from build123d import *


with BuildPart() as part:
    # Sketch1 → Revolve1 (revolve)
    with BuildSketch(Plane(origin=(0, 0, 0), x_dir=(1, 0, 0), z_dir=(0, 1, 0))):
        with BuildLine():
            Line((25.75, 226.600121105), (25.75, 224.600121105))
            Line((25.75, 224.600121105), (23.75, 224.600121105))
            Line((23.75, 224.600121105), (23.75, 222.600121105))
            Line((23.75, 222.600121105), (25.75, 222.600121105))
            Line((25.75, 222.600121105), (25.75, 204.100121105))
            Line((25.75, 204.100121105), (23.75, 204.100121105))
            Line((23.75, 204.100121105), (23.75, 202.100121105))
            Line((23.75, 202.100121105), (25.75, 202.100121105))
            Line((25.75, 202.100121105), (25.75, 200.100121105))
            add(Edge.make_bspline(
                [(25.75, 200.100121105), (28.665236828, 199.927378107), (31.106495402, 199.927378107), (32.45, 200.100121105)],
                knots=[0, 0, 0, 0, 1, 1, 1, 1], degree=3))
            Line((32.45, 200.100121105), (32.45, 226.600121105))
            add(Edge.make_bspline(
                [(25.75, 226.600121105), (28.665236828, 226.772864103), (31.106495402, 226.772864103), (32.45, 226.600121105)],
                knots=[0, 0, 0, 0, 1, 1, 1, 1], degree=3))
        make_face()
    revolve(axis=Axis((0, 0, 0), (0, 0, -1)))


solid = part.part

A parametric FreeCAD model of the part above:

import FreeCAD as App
import Part
import Sketcher

V = App.Vector

doc = App.newDocument("Part")
params = doc.addObject("Spreadsheet::Sheet", "Params")
for row, (alias, value) in enumerate([
    ("sketch1_width", "2 mm"),
    ("sketch1_width2", "2 mm"),
    ("sketch1_width3", "2 mm"),
    ("sketch1_height", "2 mm"),
    ("sketch1_height2", "2 mm"),
    ("revolution_angle", "360 deg"),
], start=1):
    params.set(f"A{row}", alias)
    params.set(f"B{row}", "=" + value)
    params.setAlias(f"B{row}", alias)

body = doc.addObject("PartDesign::Body", "Body")

sketch1 = body.newObject("Sketcher::SketchObject", "Sketch")
sketch1.AttachmentSupport = (doc.getObject("XZ_Plane"), [""])
sketch1.MapMode = "FlatFace"
sketch1.addGeometry([
    Part.LineSegment(V(25.75, -226.600121, 0), V(25.75, -224.600121, 0)),
    Part.LineSegment(V(25.75, -224.600121, 0), V(23.75, -224.600121, 0)),
    Part.LineSegment(V(23.75, -224.600121, 0), V(23.75, -222.600121, 0)),
    Part.LineSegment(V(23.75, -222.600121, 0), V(25.75, -222.600121, 0)),
    Part.LineSegment(V(25.75, -222.600121, 0), V(25.75, -204.100121, 0)),
    Part.LineSegment(V(25.75, -204.100121, 0), V(23.75, -204.100121, 0)),
    Part.LineSegment(V(23.75, -204.100121, 0), V(23.75, -202.100121, 0)),
    Part.LineSegment(V(23.75, -202.100121, 0), V(25.75, -202.100121, 0)),
    Part.LineSegment(V(25.75, -202.100121, 0), V(25.75, -200.100121, 0)),
    Part.BSplineCurve([V(25.75, -200.100121, 0), V(28.665237, -199.927378, 0), V(31.106495, -199.927378, 0), V(32.45, -200.100121, 0)], [4, 4], [0, 1], False, 3, [1, 1, 1, 1], False),
    Part.LineSegment(V(32.45, -200.100121, 0), V(32.45, -226.600121, 0)),
    Part.BSplineCurve([V(25.75, -226.600121, 0), V(28.665237, -226.772864, 0), V(31.106495, -226.772864, 0), V(32.45, -226.600121, 0)], [4, 4], [0, 1], False, 3, [1, 1, 1, 1], False),
], False)
sketch1.addConstraint([
    Sketcher.Constraint("Block", 9),
    Sketcher.Constraint("Block", 11),
    Sketcher.Constraint("Coincident", 0, 2, 1, 1),
    Sketcher.Constraint("Coincident", 1, 2, 2, 1),
    Sketcher.Constraint("Coincident", 2, 2, 3, 1),
    Sketcher.Constraint("Coincident", 3, 2, 4, 1),
    Sketcher.Constraint("Coincident", 4, 2, 5, 1),
    Sketcher.Constraint("Coincident", 5, 2, 6, 1),
    Sketcher.Constraint("Coincident", 6, 2, 7, 1),
    Sketcher.Constraint("Coincident", 7, 2, 8, 1),
    Sketcher.Constraint("Coincident", 8, 2, 9, 1),
    Sketcher.Constraint("Coincident", 9, 2, 10, 1),
    Sketcher.Constraint("Coincident", 10, 2, 11, 2),
    Sketcher.Constraint("Coincident", 11, 1, 0, 1),
    Sketcher.Constraint("Vertical", 0),
    Sketcher.Constraint("Horizontal", 1),
    Sketcher.Constraint("Vertical", 2),
    Sketcher.Constraint("Horizontal", 3),
    Sketcher.Constraint("Vertical", 4),
    Sketcher.Constraint("Horizontal", 5),
    Sketcher.Constraint("Vertical", 6),
    Sketcher.Constraint("Horizontal", 7),
    Sketcher.Constraint("Vertical", 8),
    Sketcher.Constraint("DistanceX", 1, 2, 1, 1, 2.0),
    Sketcher.Constraint("DistanceX", 3, 1, 3, 2, 2.0),
    Sketcher.Constraint("DistanceX", 5, 2, 5, 1, 2.0),
    Sketcher.Constraint("DistanceY", 0, 1, 0, 2, 2.0),
    Sketcher.Constraint("DistanceY", 2, 1, 2, 2, 2.0),
    Sketcher.Constraint("DistanceY", 6, 1, 6, 2, 2.0),
    Sketcher.Constraint("DistanceY", 8, 1, 8, 2, 2.0),
])
sketch1.setExpression("Constraints[23]", "Params.sketch1_width")
sketch1.setExpression("Constraints[24]", "Params.sketch1_width2")
sketch1.setExpression("Constraints[25]", "Params.sketch1_width3")
sketch1.setExpression("Constraints[26]", "Params.sketch1_height")
sketch1.setExpression("Constraints[27]", "Params.sketch1_height2")
revolution = body.newObject("PartDesign::Revolution", "Revolution")
revolution.Profile = sketch1
revolution.ReferenceAxis = (sketch1, ["V_Axis"])
revolution.setExpression("Angle", "Params.revolution_angle")

doc.recompute()
